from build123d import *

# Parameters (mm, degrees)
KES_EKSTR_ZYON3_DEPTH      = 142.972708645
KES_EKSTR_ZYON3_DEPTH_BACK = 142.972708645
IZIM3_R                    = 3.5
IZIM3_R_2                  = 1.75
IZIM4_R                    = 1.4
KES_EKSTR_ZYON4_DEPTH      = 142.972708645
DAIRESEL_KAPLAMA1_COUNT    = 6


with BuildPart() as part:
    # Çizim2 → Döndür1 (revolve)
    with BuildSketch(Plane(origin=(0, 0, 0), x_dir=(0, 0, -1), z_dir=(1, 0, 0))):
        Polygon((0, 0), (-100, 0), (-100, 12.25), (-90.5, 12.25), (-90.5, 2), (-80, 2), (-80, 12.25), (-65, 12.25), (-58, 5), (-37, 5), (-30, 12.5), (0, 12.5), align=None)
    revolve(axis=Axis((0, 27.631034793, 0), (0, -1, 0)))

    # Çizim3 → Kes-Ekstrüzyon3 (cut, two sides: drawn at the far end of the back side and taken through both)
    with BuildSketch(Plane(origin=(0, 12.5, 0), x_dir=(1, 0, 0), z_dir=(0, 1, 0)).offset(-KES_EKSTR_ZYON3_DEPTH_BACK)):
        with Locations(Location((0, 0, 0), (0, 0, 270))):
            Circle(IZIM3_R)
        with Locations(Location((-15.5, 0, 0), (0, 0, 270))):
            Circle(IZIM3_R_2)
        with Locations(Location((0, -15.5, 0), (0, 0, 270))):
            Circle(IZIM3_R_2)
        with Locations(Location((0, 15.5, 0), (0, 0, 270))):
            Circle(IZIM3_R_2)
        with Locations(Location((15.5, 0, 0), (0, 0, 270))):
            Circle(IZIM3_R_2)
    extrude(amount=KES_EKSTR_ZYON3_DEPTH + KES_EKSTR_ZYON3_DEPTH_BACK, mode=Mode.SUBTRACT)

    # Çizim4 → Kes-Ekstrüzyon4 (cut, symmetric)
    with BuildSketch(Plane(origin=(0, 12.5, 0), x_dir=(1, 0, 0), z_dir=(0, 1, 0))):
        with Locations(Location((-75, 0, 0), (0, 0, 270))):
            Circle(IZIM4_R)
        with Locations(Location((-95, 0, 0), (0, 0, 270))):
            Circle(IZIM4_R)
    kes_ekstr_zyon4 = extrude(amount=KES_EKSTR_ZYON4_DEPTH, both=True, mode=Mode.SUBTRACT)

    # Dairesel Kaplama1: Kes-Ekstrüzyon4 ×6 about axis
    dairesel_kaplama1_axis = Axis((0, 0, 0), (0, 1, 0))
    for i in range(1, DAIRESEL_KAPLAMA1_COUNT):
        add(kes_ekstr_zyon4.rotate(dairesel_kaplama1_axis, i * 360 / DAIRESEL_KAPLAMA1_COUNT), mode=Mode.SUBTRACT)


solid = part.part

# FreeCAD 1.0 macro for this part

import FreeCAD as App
import Part
import Sketcher

V = App.Vector
Q = App.Units.Quantity

doc = App.newDocument("Part")
body = doc.addObject("PartDesign::Body", "Body")

# Sketch on YZ plane
sketch1 = body.newObject("Sketcher::SketchObject", "Sketch")
sketch1.AttachmentSupport = (doc.getObject("YZ_Plane"), [""])
sketch1.MapMode = "FlatFace"
sketch1.addGeometry([
    Part.LineSegment(V(0, 100, 0), V(0, 0, 0)),  # 0
    Part.LineSegment(V(0, 0, 0), V(12, 0, 0)),  # 1
    Part.LineSegment(V(12, 0, 0), V(12, 30, 0)),  # 2
    Part.LineSegment(V(12, 30, 0), V(5, 37, 0)),  # 3
    Part.LineSegment(V(5, 37, 0), V(5, 58, 0)),  # 4
    Part.LineSegment(V(5, 58, 0), V(12, 65, 0)),  # 5
    Part.LineSegment(V(12, 65, 0), V(12, 80, 0)),  # 6
    Part.LineSegment(V(12, 80, 0), V(2, 80, 0)),  # 7
    Part.LineSegment(V(2, 80, 0), V(2, 90, 0)),  # 8
    Part.LineSegment(V(2, 90, 0), V(12, 90, 0)),  # 9
    Part.LineSegment(V(12, 90, 0), V(12, 100, 0)),  # 10
    Part.LineSegment(V(12, 100, 0), V(0, 100, 0)),  # 11
], False)
sketch1.addConstraint([
    Sketcher.Constraint("Coincident", 0, 2, 1, 1),
    Sketcher.Constraint("Coincident", 1, 2, 2, 1),
    Sketcher.Constraint("Coincident", 2, 2, 3, 1),
    Sketcher.Constraint("Coincident", 3, 2, 4, 1),
    Sketcher.Constraint("Coincident", 4, 2, 5, 1),
    Sketcher.Constraint("Coincident", 5, 2, 6, 1),
    Sketcher.Constraint("Coincident", 6, 2, 7, 1),
    Sketcher.Constraint("Coincident", 7, 2, 8, 1),
    Sketcher.Constraint("Coincident", 8, 2, 9, 1),
    Sketcher.Constraint("Coincident", 9, 2, 10, 1),
    Sketcher.Constraint("Coincident", 10, 2, 11, 1),
    Sketcher.Constraint("Coincident", 11, 2, 0, 1),
    Sketcher.Constraint("Vertical", 0),
    Sketcher.Constraint("Horizontal", 1),
    Sketcher.Constraint("Vertical", 2),
    Sketcher.Constraint("Vertical", 4),
    Sketcher.Constraint("Vertical", 6),
    Sketcher.Constraint("Horizontal", 7),
    Sketcher.Constraint("Vertical", 8),
    Sketcher.Constraint("Horizontal", 9),
    Sketcher.Constraint("Vertical", 10),
    Sketcher.Constraint("Horizontal", 11),
    Sketcher.Constraint("Coincident", 0, 2, -1, 1),
    Sketcher.Constraint("Vertical", 6, 2, 9, 2),
    Sketcher.Constraint("DistanceY", 0, 2, 0, 1, Q("100 mm")),
    Sketcher.Constraint("DistanceY", 2, 1, 2, 2, Q("30 mm")),
    Sketcher.Constraint("DistanceY", 4, 1, 4, 2, Q("21 mm")),
    Sketcher.Constraint("DistanceY", 6, 1, 6, 2, Q("15 mm")),
    Sketcher.Constraint("DistanceX", 1, 1, 1, 2, Q("12.5 mm")),
    Sketcher.Constraint("DistanceY", 8, 1, 8, 2, Q("10.5 mm")),
    Sketcher.Constraint("DistanceY", 10, 1, 10, 2, Q("9.5 mm")),
    Sketcher.Constraint("DistanceX", -1, 1, 3, 2, Q("5 mm")),
    Sketcher.Constraint("DistanceY", -1, 1, 3, 2, Q("37 mm")),
    Sketcher.Constraint("DistanceX", -1, 1, 7, 2, Q("2 mm")),
    Sketcher.Constraint("DistanceX", 7, 2, 7, 1, Q("10.25 mm")),
])
revolution = body.newObject("PartDesign::Revolution", "Revolution")
revolution.Profile = sketch1
revolution.ReferenceAxis = (sketch1, ["H_Axis"])
revolution.Angle = 360

# Sketch on XZ plane
sketch2 = body.newObject("Sketcher::SketchObject", "Sketch001")
sketch2.AttachmentSupport = (doc.getObject("XZ_Plane"), [""])
sketch2.MapMode = "FlatFace"
sketch2.AttachmentOffset = App.Placement(V(0, 0, -12.5), App.Rotation())
sketch2.addGeometry([
    Part.Circle(V(0, 0, 0), V(0, 0, 1), 3.5),  # 0
    Part.Circle(V(-15.5, 0, 0), V(0, 0, 1), 1.8),  # 1
    Part.Circle(V(0, 15.5, 0), V(0, 0, 1), 1.8),  # 2
    Part.Circle(V(0, -15.5, 0), V(0, 0, 1), 1.8),  # 3
    Part.Circle(V(15.5, 0, 0), V(0, 0, 1), 1.8),  # 4
], False)
sketch2.addConstraint([
    Sketcher.Constraint("Coincident", 0, 3, -1, 1),
    Sketcher.Constraint("Equal", 1, 2),
    Sketcher.Constraint("Equal", 2, 3),
    Sketcher.Constraint("Equal", 3, 4),
    Sketcher.Constraint("Symmetric", 2, 3, 3, 3, -1, 1),
    Sketcher.Constraint("Symmetric", 1, 3, 4, 3, -1, 1),
    Sketcher.Constraint("PointOnObject", 1, 3, -1),
    Sketcher.Constraint("PointOnObject", 2, 3, -2),
    Sketcher.Constraint("Diameter", 0, Q("7 mm")),
    Sketcher.Constraint("Diameter", 1, Q("3.5 mm")),
    Sketcher.Constraint("DistanceY", 3, 3, 2, 3, Q("31 mm")),
    Sketcher.Constraint("DistanceX", 1, 3, 4, 3, Q("31 mm")),
])
pocket1 = body.newObject("PartDesign::Pocket", "Pocket")
pocket1.Profile = sketch2
pocket1.Type = "ThroughAll"
pocket1.Midplane = True

# Sketch on XZ plane
sketch3 = body.newObject("Sketcher::SketchObject", "Sketch002")
sketch3.AttachmentSupport = (doc.getObject("XZ_Plane"), [""])
sketch3.MapMode = "FlatFace"
sketch3.AttachmentOffset = App.Placement(V(0, 0, -12.5), App.Rotation())
sketch3.addGeometry([
    Part.Circle(V(-75, 0, 0), V(0, 0, 1), 1.4),
    Part.Circle(V(-95, 0, 0), V(0, 0, 1), 1.4),
], False)
sketch3.addConstraint([
    Sketcher.Constraint("Equal", 0, 1),
    Sketcher.Constraint("PointOnObject", 0, 3, -1),
    Sketcher.Constraint("PointOnObject", 1, 3, -1),
    Sketcher.Constraint("Diameter", 0, Q("2.8 mm")),
    Sketcher.Constraint("DistanceX", 0, 3, -1, 1, Q("75 mm")),
    Sketcher.Constraint("DistanceX", 1, 3, -1, 1, Q("95 mm")),
])
pocket2 = body.newObject("PartDesign::Pocket", "Pocket001")
pocket2.Profile = sketch3
pocket2.Length = 285.945417
pocket2.Midplane = True
doc.recompute()

polarpattern = body.newObject("PartDesign::PolarPattern", "PolarPattern")
polarpattern.Originals = [pocket2]
polarpattern.Axis = (doc.getObject("Y_Axis"), [""])
polarpattern.Angle = 360
polarpattern.Occurrences = 6
body.Tip = polarpattern

doc.recompute()
